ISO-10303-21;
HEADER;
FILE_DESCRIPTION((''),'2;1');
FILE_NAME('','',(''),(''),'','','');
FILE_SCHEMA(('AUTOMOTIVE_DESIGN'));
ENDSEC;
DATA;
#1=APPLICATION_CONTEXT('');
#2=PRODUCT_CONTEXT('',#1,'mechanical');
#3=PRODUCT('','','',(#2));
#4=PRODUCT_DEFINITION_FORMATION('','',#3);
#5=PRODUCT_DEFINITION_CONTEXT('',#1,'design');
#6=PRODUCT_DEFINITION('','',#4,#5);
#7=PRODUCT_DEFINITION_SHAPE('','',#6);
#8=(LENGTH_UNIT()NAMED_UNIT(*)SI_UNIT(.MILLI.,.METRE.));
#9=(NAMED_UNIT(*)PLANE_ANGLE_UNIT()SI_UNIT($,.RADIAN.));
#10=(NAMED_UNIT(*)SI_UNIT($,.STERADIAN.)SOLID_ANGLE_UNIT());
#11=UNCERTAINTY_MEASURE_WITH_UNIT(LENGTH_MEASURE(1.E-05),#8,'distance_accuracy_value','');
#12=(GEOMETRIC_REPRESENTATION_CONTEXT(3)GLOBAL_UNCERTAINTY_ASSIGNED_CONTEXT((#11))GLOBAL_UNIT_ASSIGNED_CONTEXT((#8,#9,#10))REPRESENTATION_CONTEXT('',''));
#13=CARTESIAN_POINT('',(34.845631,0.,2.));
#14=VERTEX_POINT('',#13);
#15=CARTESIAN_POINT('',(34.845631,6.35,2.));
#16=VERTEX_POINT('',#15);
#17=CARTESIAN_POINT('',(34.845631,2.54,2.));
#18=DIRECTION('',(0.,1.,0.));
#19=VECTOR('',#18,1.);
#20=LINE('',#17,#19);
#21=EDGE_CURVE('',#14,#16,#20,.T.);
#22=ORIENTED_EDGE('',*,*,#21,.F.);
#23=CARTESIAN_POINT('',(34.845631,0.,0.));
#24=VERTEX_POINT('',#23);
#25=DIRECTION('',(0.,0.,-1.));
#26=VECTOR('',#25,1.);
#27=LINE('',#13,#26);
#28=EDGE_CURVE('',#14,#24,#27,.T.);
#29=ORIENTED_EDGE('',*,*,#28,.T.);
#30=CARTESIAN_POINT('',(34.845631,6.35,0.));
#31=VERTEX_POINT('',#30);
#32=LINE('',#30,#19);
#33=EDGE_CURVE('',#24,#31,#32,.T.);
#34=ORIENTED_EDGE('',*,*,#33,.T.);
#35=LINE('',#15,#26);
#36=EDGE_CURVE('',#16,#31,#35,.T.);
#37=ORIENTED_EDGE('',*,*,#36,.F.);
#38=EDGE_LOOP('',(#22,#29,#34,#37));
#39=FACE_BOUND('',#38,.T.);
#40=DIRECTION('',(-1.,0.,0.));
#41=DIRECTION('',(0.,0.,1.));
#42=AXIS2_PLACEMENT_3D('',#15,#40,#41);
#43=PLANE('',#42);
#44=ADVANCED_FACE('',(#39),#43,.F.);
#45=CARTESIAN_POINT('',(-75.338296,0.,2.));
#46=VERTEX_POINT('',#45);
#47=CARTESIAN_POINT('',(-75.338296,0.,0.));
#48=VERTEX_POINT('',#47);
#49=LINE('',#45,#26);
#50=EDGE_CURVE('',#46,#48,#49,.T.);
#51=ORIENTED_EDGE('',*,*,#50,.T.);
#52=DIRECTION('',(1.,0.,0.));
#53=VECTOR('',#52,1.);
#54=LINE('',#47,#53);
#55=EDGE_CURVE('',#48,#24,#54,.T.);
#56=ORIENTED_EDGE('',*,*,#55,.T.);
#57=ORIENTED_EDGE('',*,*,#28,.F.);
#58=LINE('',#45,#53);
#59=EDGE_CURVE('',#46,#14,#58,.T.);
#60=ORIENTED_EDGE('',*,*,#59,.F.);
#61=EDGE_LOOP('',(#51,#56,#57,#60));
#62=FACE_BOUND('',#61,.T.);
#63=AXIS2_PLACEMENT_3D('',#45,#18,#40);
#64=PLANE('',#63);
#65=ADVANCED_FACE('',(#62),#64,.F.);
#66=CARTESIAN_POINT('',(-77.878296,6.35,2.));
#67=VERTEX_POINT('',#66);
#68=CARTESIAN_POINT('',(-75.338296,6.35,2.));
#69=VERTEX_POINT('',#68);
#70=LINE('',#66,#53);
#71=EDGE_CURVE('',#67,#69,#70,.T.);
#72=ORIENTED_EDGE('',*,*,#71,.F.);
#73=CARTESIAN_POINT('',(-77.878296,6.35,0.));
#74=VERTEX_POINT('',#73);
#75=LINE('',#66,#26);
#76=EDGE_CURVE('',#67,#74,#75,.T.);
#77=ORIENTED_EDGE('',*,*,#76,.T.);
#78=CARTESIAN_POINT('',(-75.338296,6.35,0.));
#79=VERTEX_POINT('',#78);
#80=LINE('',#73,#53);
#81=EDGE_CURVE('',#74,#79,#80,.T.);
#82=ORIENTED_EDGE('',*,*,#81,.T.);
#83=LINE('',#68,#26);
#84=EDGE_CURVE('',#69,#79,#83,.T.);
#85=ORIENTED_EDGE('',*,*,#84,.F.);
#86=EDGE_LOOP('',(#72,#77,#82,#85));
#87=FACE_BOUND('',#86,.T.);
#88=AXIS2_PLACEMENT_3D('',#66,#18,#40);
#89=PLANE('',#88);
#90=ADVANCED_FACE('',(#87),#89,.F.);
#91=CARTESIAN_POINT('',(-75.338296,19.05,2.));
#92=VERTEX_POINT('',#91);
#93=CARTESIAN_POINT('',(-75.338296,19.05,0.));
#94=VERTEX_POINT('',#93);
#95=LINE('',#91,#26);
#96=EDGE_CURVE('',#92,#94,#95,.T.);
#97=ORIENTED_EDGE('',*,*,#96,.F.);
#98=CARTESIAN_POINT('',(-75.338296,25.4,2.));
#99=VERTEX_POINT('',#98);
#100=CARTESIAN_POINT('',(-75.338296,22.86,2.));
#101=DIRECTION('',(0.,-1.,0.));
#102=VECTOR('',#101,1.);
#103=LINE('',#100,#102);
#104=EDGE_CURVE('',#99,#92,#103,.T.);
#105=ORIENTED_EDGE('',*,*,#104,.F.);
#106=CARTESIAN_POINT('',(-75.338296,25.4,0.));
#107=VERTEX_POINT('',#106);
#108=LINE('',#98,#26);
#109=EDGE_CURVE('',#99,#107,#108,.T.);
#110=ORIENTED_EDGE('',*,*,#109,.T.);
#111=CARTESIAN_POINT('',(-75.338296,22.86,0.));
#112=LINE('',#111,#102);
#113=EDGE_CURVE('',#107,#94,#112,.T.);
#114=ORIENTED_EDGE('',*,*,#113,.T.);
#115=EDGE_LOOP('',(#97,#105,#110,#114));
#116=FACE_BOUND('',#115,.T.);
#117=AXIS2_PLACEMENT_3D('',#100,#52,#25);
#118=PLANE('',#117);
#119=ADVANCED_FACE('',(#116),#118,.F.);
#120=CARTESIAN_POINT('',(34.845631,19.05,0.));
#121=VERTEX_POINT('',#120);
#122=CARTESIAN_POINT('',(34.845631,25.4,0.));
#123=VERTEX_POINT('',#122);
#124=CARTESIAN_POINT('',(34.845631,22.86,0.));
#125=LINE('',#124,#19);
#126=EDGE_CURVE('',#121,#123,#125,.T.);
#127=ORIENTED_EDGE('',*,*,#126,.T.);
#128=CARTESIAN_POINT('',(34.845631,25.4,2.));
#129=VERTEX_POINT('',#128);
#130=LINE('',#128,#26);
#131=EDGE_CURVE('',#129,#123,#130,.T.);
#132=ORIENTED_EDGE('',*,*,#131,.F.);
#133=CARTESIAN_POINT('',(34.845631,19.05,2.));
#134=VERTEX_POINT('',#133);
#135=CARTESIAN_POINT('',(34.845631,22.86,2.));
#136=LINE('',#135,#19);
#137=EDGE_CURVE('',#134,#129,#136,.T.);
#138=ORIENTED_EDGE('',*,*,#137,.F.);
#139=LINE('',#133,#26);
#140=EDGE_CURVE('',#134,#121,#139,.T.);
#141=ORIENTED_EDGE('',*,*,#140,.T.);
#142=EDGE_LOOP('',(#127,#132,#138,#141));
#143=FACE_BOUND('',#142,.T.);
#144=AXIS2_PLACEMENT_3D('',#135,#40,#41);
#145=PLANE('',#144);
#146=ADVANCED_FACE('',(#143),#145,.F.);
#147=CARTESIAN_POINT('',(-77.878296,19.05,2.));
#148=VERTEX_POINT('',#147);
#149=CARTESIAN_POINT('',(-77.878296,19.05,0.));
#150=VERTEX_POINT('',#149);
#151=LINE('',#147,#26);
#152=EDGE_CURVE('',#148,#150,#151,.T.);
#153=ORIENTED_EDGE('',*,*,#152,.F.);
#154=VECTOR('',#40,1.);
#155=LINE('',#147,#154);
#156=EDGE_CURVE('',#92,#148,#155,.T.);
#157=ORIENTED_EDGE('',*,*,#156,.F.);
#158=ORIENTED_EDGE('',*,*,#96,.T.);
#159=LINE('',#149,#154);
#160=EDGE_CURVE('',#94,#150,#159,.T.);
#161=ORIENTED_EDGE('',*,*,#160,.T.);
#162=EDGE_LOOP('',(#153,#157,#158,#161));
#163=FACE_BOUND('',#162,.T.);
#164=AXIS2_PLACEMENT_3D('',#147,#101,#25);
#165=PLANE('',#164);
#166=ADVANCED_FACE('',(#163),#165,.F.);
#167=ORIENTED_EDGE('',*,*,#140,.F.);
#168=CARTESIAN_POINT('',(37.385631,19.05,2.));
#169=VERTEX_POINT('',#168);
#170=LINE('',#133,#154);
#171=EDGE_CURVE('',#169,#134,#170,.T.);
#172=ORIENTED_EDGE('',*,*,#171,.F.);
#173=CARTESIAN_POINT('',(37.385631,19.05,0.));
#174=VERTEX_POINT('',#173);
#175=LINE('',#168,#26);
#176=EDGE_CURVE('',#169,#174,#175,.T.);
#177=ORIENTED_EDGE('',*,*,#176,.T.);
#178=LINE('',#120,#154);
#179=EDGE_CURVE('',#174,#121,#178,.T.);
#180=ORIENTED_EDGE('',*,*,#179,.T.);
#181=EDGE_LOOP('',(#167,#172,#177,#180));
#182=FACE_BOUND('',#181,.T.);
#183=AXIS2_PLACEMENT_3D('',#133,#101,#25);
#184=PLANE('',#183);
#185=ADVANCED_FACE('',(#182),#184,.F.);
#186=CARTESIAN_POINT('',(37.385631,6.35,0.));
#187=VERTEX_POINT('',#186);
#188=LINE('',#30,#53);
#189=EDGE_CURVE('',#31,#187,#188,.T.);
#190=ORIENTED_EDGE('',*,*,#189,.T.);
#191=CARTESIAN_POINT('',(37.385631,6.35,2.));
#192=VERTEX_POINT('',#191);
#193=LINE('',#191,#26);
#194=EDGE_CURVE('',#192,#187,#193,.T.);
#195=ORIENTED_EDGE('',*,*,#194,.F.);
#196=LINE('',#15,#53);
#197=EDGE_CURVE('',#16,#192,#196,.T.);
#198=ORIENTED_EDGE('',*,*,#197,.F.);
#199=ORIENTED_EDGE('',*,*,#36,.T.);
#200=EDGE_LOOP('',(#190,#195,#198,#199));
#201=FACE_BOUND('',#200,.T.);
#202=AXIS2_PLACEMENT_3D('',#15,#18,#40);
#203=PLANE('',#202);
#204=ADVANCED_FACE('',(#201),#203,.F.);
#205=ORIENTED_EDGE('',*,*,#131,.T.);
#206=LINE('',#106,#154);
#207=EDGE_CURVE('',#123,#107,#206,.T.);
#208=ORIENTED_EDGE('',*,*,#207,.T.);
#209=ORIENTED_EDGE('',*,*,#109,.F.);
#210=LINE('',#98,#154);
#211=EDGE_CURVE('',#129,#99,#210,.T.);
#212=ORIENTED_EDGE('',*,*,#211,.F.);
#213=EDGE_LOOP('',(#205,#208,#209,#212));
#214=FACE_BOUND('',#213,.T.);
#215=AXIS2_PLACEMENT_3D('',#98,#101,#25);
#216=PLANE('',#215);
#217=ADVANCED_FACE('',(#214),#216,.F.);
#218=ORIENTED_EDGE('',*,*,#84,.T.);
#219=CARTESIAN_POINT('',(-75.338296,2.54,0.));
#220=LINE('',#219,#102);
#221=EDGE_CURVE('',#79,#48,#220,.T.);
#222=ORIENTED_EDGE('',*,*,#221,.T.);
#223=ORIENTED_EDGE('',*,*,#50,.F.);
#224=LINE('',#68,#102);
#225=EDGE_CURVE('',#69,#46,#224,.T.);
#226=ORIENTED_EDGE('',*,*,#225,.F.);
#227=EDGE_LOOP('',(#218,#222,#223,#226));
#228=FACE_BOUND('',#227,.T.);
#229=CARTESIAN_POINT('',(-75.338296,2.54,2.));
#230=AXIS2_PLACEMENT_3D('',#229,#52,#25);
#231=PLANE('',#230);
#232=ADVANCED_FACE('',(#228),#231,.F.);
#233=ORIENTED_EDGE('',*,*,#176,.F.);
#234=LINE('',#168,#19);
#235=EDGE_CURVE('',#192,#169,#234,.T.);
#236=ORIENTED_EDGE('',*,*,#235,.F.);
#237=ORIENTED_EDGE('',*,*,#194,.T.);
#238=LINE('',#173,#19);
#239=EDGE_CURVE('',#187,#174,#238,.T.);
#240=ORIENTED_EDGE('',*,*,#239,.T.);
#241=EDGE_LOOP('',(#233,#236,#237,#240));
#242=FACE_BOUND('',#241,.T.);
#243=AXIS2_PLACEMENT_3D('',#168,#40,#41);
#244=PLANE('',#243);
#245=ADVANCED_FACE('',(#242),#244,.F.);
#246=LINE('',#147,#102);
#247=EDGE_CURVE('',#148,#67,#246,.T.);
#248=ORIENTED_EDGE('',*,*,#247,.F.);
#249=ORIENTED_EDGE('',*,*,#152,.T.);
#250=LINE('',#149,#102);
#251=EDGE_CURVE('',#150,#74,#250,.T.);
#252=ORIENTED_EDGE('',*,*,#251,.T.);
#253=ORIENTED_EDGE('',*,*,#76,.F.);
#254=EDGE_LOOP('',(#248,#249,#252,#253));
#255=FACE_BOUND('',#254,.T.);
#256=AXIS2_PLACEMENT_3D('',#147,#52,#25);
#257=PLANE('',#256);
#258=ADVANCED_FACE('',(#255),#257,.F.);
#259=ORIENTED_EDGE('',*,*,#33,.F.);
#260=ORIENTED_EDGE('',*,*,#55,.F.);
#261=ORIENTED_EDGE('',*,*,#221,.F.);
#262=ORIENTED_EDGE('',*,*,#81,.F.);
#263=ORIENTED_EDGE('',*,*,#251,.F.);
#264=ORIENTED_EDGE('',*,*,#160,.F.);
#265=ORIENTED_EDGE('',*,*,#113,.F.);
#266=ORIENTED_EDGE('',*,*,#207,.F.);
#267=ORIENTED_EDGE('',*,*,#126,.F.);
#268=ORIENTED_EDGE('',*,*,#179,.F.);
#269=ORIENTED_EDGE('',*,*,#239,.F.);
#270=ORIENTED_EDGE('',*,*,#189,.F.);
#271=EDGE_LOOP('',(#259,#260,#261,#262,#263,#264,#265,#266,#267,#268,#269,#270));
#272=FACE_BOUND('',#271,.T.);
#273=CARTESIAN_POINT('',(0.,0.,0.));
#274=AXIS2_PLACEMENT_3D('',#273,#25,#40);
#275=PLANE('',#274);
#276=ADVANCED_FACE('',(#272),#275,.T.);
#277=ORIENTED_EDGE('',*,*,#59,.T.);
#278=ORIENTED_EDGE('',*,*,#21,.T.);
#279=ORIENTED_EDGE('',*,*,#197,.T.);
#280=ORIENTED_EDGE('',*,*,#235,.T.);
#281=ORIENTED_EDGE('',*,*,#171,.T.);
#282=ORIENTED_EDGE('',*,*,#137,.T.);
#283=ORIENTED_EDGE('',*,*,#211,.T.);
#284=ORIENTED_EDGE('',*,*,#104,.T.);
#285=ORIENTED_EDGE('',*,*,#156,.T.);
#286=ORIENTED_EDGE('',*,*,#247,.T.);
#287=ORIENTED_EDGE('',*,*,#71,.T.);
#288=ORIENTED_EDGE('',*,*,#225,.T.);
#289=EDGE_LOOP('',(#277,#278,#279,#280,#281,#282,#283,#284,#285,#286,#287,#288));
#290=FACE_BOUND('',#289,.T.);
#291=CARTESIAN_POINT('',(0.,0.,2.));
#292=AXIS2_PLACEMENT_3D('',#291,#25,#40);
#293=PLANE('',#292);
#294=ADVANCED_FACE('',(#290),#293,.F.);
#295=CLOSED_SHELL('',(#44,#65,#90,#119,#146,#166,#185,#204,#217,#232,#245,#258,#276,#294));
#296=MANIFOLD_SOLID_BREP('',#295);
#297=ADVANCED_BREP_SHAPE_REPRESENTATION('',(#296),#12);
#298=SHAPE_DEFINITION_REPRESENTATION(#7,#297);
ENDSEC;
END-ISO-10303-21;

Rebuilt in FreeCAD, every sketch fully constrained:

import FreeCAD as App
import Part
import Sketcher
from FreeCAD import Vector
Q = App.Units.Quantity


def add_polygon(sketch, points):
    """Adds a closed chain of lines whose ends are joined by coincident constraints."""
    first, n = sketch.GeometryCount, len(points)
    for a, b in zip(points, points[1:] + points[:1]):
        sketch.addGeometry(Part.LineSegment(App.Vector(*a, 0), App.Vector(*b, 0)), False)
    for i in range(n):
        sketch.addConstraint(Sketcher.Constraint("Coincident", first + i, 2, first + (i + 1) % n, 1))

doc = App.newDocument("Part")
body = doc.addObject("PartDesign::Body", "Body")

sketch1 = body.newObject("Sketcher::SketchObject", "Sketch")
sketch1.AttachmentSupport = (doc.getObject("XY_Plane"), [""])
sketch1.MapMode = "FlatFace"
add_polygon(sketch1, [(-75.338296, 19.05), (-77.878296, 19.05), (-77.878296, 6.35), (-75.338296, 6.35), (-75.338296, 0), (34.845631, 0), (34.845631, 6.35), (37.385631, 6.35), (37.385631, 19.05), (34.845631, 19.05), (34.845631, 25.4), (-75.338296, 25.4)])
sketch1.addConstraint([
    Sketcher.Constraint("Horizontal", 0),
    Sketcher.Constraint("Vertical", 1),
    Sketcher.Constraint("Horizontal", 2),
    Sketcher.Constraint("Vertical", 3),
    Sketcher.Constraint("Horizontal", 4),
    Sketcher.Constraint("Vertical", 5),
    Sketcher.Constraint("Horizontal", 6),
    Sketcher.Constraint("Vertical", 7),
    Sketcher.Constraint("Horizontal", 8),
    Sketcher.Constraint("Vertical", 9),
    Sketcher.Constraint("Horizontal", 10),
    Sketcher.Constraint("Vertical", 11),
    Sketcher.Constraint("PointOnObject", 3, 2, -1),
    Sketcher.Constraint("Horizontal", 2, 2, 5, 2),
    Sketcher.Constraint("Horizontal", 0, 2, 7, 2),
    Sketcher.Constraint("Vertical", 5, 2, 8, 2),
    Sketcher.Constraint("Vertical", 3, 2, 10, 2),
    Sketcher.Constraint("Equal", 2, 6),
    Sketcher.Constraint("Equal", 5, 9),
    Sketcher.Constraint("DistanceX", 0, 2, 0, 1, Q("0.1 in")),
    Sketcher.Constraint("DistanceY", 1, 2, 1, 1, Q("0.5 in")),
    Sketcher.Constraint("DistanceY", -1, 1, 9, 2, Q("1 in")),
    Sketcher.Constraint("DistanceX", 4, 1, 4, 2, 110.183927),
    Sketcher.Constraint("DistanceX", -1, 1, 4, 2, 34.845631),
])
pad1 = body.newObject("PartDesign::Pad", "Pad")
pad1.Profile = sketch1
pad1.Length = 2

doc.recompute()
